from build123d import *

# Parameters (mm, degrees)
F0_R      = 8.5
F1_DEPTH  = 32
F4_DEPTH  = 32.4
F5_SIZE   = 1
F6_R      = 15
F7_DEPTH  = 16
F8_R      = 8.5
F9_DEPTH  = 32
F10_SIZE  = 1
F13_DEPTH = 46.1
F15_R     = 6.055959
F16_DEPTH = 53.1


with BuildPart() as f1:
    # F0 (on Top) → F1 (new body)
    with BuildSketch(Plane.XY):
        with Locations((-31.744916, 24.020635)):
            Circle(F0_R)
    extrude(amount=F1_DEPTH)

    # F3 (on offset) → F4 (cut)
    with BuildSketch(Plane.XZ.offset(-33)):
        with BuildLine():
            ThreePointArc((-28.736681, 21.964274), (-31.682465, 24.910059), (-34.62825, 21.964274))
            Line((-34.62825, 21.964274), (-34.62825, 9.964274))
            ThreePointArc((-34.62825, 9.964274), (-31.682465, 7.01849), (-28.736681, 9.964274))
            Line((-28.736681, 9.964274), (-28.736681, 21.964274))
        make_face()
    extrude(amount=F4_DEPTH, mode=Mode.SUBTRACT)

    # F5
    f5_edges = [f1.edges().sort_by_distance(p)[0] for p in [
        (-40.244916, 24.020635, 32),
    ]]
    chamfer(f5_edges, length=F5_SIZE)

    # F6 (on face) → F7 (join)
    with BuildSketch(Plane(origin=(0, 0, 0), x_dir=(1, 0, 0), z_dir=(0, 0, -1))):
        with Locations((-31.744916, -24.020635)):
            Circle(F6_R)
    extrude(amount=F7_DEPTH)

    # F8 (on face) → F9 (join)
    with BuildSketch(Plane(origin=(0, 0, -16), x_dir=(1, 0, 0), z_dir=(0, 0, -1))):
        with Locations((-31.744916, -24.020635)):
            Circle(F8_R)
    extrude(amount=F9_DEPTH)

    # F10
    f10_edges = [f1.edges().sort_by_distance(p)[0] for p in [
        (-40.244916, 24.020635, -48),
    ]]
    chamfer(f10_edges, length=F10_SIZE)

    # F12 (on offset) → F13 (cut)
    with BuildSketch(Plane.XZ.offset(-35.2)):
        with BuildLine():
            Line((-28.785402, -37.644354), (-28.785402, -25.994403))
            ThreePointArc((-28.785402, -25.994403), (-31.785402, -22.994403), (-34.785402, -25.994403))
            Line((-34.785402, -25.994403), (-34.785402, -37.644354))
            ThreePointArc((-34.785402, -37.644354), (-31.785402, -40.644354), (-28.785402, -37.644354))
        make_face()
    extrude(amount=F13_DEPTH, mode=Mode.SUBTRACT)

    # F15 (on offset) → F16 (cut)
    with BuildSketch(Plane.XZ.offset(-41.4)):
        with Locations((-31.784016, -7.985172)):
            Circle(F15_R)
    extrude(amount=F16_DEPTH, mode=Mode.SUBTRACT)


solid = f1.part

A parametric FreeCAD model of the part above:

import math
import FreeCAD as App
import Part
import Sketcher

V = App.Vector


def edges_at(feature, points):
    """Names of the edges that pass closest to the given points."""
    edges = feature.Shape.Edges
    near = lambda p: min(range(len(edges)), key=lambda i: edges[i].distToShape(Part.Vertex(*p))[0])
    return sorted({f"Edge{near(p) + 1}" for p in points})

doc = App.newDocument("Part")
body = doc.addObject("PartDesign::Body", "Body")

sketch1 = doc.addObject("Sketcher::SketchObject", "Sketch")
body.addObject(sketch1)
sketch1.AttachmentSupport = (doc.XY_Plane, [""])
sketch1.MapMode = "FlatFace"
sketch1.addGeometry(Part.Circle(V(-32, 24, 0), V(0, 0, 1), 8), False)
sketch1.addConstraint([
    Sketcher.Constraint("Diameter", 0, 17.0),
    Sketcher.Constraint("DistanceX", 0, 3, -1, 1, 31.744916),
    Sketcher.Constraint("DistanceY", -1, 1, 0, 3, 24.020635),
])
pad1 = doc.addObject("PartDesign::Pad", "Pad")
body.addObject(pad1)
pad1.Profile = sketch1
pad1.Length = 32

sketch2 = doc.addObject("Sketcher::SketchObject", "Sketch001")
body.addObject(sketch2)
sketch2.AttachmentSupport = (doc.XZ_Plane, [""])
sketch2.MapMode = "FlatFace"
sketch2.AttachmentOffset = App.Placement(V(0, 0, -33), App.Rotation())
sketch2.addGeometry([
    Part.ArcOfCircle(Part.Circle(V(-31.7, 22, 0), V(0, 0, 1), 2.9), math.radians(0), math.radians(180)),
    Part.LineSegment(V(-34.6, 22, 0), V(-34.6, 10, 0)),
    Part.ArcOfCircle(Part.Circle(V(-31.7, 10, 0), V(0, 0, 1), 2.9), math.radians(-180), math.radians(0)),
    Part.LineSegment(V(-28.7, 10, 0), V(-28.7, 22, 0)),
], False)
sketch2.addConstraint([
    Sketcher.Constraint("Tangent", 0, 2, 1, 1),
    Sketcher.Constraint("Tangent", 1, 2, 2, 1),
    Sketcher.Constraint("Tangent", 2, 2, 3, 1),
    Sketcher.Constraint("Tangent", 3, 2, 0, 1),
    Sketcher.Constraint("Vertical", 1),
    Sketcher.Constraint("Vertical", 3),
    Sketcher.Constraint("DistanceY", 1, 2, 1, 1, 12.0),
    Sketcher.Constraint("Radius", 0, 2.945784),
    Sketcher.Constraint("DistanceX", 0, 2, -1, 1, 34.62825),
    Sketcher.Constraint("DistanceY", -1, 1, 0, 3, 21.964274),
])
pocket1 = doc.addObject("PartDesign::Pocket", "Pocket")
body.addObject(pocket1)
pocket1.Profile = sketch2
pocket1.Length = 32.4
pocket1.Reversed = True
doc.recompute()

chamfer = doc.addObject("PartDesign::Chamfer", "Chamfer")
body.addObject(chamfer)
chamfer.Base = (pocket1, edges_at(pocket1, [(-40.245, 24.021, 32)]))
chamfer.Size = 1

sketch3 = doc.addObject("Sketcher::SketchObject", "Sketch002")
body.addObject(sketch3)
sketch3.AttachmentSupport = (doc.XY_Plane, [""])
sketch3.MapMode = "FlatFace"
sketch3.addGeometry(Part.Circle(V(-32, 24, 0), V(0, 0, 1), 15), False)
sketch3.addConstraint([
    Sketcher.Constraint("Diameter", 0, 30.0),
    Sketcher.Constraint("DistanceX", 0, 3, -1, 1, 31.744916),
    Sketcher.Constraint("DistanceY", -1, 1, 0, 3, 24.020635),
])
pad2 = doc.addObject("PartDesign::Pad", "Pad001")
body.addObject(pad2)
pad2.Profile = sketch3
pad2.Length = 16
pad2.Reversed = True

sketch4 = doc.addObject("Sketcher::SketchObject", "Sketch003")
body.addObject(sketch4)
sketch4.AttachmentSupport = (doc.XY_Plane, [""])
sketch4.MapMode = "FlatFace"
sketch4.AttachmentOffset = App.Placement(V(0, 0, -16), App.Rotation())
sketch4.addGeometry(Part.Circle(V(-32, 24, 0), V(0, 0, 1), 8), False)
sketch4.addConstraint([
    Sketcher.Constraint("Diameter", 0, 17.0),
    Sketcher.Constraint("DistanceX", 0, 3, -1, 1, 31.744916),
    Sketcher.Constraint("DistanceY", -1, 1, 0, 3, 24.020635),
])
pad3 = doc.addObject("PartDesign::Pad", "Pad002")
body.addObject(pad3)
pad3.Profile = sketch4
pad3.Length = 32
pad3.Reversed = True
doc.recompute()

chamfer2 = doc.addObject("PartDesign::Chamfer", "Chamfer001")
body.addObject(chamfer2)
chamfer2.Base = (pad3, edges_at(pad3, [(-40.245, 24.021, -48)]))
chamfer2.Size = 1

sketch5 = doc.addObject("Sketcher::SketchObject", "Sketch004")
body.addObject(sketch5)
sketch5.AttachmentSupport = (doc.XZ_Plane, [""])
sketch5.MapMode = "FlatFace"
sketch5.AttachmentOffset = App.Placement(V(0, 0, -35.2), App.Rotation())
sketch5.addGeometry([
    Part.LineSegment(V(-28.8, -37.6, 0), V(-28.8, -26, 0)),
    Part.ArcOfCircle(Part.Circle(V(-31.8, -26, 0), V(0, 0, 1), 3), math.radians(0), math.radians(180)),
    Part.LineSegment(V(-34.8, -26, 0), V(-34.8, -37.6, 0)),
    Part.ArcOfCircle(Part.Circle(V(-31.8, -37.6, 0), V(0, 0, 1), 3), math.radians(180), math.radians(360)),
], False)
sketch5.addConstraint([
    Sketcher.Constraint("Tangent", 0, 2, 1, 1),
    Sketcher.Constraint("Tangent", 1, 2, 2, 1),
    Sketcher.Constraint("Tangent", 2, 2, 3, 1),
    Sketcher.Constraint("Tangent", 3, 2, 0, 1),
    Sketcher.Constraint("Vertical", 0),
    Sketcher.Constraint("Vertical", 2),
    Sketcher.Constraint("Radius", 1, 3.0),
    Sketcher.Constraint("DistanceY", 0, 1, 0, 2, 11.649951),
    Sketcher.Constraint("DistanceX", 2, 2, -1, 1, 34.785402),
    Sketcher.Constraint("DistanceY", 1, 3, -1, 1, 25.994403),
])
pocket2 = doc.addObject("PartDesign::Pocket", "Pocket001")
body.addObject(pocket2)
pocket2.Profile = sketch5
pocket2.Length = 46.1
pocket2.Reversed = True

sketch6 = doc.addObject("Sketcher::SketchObject", "Sketch005")
body.addObject(sketch6)
sketch6.AttachmentSupport = (doc.XZ_Plane, [""])
sketch6.MapMode = "FlatFace"
sketch6.AttachmentOffset = App.Placement(V(0, 0, -41.4), App.Rotation())
sketch6.addGeometry(Part.Circle(V(-32, -8, 0), V(0, 0, 1), 6), False)
sketch6.addConstraint([
    Sketcher.Constraint("Diameter", 0, 12.111918),
    Sketcher.Constraint("DistanceX", 0, 3, -1, 1, 31.784016),
    Sketcher.Constraint("DistanceY", 0, 3, -1, 1, 7.985172),
])
pocket3 = doc.addObject("PartDesign::Pocket", "Pocket002")
body.addObject(pocket3)
pocket3.Profile = sketch6
pocket3.Length = 53.1
pocket3.Reversed = True

doc.recompute()
